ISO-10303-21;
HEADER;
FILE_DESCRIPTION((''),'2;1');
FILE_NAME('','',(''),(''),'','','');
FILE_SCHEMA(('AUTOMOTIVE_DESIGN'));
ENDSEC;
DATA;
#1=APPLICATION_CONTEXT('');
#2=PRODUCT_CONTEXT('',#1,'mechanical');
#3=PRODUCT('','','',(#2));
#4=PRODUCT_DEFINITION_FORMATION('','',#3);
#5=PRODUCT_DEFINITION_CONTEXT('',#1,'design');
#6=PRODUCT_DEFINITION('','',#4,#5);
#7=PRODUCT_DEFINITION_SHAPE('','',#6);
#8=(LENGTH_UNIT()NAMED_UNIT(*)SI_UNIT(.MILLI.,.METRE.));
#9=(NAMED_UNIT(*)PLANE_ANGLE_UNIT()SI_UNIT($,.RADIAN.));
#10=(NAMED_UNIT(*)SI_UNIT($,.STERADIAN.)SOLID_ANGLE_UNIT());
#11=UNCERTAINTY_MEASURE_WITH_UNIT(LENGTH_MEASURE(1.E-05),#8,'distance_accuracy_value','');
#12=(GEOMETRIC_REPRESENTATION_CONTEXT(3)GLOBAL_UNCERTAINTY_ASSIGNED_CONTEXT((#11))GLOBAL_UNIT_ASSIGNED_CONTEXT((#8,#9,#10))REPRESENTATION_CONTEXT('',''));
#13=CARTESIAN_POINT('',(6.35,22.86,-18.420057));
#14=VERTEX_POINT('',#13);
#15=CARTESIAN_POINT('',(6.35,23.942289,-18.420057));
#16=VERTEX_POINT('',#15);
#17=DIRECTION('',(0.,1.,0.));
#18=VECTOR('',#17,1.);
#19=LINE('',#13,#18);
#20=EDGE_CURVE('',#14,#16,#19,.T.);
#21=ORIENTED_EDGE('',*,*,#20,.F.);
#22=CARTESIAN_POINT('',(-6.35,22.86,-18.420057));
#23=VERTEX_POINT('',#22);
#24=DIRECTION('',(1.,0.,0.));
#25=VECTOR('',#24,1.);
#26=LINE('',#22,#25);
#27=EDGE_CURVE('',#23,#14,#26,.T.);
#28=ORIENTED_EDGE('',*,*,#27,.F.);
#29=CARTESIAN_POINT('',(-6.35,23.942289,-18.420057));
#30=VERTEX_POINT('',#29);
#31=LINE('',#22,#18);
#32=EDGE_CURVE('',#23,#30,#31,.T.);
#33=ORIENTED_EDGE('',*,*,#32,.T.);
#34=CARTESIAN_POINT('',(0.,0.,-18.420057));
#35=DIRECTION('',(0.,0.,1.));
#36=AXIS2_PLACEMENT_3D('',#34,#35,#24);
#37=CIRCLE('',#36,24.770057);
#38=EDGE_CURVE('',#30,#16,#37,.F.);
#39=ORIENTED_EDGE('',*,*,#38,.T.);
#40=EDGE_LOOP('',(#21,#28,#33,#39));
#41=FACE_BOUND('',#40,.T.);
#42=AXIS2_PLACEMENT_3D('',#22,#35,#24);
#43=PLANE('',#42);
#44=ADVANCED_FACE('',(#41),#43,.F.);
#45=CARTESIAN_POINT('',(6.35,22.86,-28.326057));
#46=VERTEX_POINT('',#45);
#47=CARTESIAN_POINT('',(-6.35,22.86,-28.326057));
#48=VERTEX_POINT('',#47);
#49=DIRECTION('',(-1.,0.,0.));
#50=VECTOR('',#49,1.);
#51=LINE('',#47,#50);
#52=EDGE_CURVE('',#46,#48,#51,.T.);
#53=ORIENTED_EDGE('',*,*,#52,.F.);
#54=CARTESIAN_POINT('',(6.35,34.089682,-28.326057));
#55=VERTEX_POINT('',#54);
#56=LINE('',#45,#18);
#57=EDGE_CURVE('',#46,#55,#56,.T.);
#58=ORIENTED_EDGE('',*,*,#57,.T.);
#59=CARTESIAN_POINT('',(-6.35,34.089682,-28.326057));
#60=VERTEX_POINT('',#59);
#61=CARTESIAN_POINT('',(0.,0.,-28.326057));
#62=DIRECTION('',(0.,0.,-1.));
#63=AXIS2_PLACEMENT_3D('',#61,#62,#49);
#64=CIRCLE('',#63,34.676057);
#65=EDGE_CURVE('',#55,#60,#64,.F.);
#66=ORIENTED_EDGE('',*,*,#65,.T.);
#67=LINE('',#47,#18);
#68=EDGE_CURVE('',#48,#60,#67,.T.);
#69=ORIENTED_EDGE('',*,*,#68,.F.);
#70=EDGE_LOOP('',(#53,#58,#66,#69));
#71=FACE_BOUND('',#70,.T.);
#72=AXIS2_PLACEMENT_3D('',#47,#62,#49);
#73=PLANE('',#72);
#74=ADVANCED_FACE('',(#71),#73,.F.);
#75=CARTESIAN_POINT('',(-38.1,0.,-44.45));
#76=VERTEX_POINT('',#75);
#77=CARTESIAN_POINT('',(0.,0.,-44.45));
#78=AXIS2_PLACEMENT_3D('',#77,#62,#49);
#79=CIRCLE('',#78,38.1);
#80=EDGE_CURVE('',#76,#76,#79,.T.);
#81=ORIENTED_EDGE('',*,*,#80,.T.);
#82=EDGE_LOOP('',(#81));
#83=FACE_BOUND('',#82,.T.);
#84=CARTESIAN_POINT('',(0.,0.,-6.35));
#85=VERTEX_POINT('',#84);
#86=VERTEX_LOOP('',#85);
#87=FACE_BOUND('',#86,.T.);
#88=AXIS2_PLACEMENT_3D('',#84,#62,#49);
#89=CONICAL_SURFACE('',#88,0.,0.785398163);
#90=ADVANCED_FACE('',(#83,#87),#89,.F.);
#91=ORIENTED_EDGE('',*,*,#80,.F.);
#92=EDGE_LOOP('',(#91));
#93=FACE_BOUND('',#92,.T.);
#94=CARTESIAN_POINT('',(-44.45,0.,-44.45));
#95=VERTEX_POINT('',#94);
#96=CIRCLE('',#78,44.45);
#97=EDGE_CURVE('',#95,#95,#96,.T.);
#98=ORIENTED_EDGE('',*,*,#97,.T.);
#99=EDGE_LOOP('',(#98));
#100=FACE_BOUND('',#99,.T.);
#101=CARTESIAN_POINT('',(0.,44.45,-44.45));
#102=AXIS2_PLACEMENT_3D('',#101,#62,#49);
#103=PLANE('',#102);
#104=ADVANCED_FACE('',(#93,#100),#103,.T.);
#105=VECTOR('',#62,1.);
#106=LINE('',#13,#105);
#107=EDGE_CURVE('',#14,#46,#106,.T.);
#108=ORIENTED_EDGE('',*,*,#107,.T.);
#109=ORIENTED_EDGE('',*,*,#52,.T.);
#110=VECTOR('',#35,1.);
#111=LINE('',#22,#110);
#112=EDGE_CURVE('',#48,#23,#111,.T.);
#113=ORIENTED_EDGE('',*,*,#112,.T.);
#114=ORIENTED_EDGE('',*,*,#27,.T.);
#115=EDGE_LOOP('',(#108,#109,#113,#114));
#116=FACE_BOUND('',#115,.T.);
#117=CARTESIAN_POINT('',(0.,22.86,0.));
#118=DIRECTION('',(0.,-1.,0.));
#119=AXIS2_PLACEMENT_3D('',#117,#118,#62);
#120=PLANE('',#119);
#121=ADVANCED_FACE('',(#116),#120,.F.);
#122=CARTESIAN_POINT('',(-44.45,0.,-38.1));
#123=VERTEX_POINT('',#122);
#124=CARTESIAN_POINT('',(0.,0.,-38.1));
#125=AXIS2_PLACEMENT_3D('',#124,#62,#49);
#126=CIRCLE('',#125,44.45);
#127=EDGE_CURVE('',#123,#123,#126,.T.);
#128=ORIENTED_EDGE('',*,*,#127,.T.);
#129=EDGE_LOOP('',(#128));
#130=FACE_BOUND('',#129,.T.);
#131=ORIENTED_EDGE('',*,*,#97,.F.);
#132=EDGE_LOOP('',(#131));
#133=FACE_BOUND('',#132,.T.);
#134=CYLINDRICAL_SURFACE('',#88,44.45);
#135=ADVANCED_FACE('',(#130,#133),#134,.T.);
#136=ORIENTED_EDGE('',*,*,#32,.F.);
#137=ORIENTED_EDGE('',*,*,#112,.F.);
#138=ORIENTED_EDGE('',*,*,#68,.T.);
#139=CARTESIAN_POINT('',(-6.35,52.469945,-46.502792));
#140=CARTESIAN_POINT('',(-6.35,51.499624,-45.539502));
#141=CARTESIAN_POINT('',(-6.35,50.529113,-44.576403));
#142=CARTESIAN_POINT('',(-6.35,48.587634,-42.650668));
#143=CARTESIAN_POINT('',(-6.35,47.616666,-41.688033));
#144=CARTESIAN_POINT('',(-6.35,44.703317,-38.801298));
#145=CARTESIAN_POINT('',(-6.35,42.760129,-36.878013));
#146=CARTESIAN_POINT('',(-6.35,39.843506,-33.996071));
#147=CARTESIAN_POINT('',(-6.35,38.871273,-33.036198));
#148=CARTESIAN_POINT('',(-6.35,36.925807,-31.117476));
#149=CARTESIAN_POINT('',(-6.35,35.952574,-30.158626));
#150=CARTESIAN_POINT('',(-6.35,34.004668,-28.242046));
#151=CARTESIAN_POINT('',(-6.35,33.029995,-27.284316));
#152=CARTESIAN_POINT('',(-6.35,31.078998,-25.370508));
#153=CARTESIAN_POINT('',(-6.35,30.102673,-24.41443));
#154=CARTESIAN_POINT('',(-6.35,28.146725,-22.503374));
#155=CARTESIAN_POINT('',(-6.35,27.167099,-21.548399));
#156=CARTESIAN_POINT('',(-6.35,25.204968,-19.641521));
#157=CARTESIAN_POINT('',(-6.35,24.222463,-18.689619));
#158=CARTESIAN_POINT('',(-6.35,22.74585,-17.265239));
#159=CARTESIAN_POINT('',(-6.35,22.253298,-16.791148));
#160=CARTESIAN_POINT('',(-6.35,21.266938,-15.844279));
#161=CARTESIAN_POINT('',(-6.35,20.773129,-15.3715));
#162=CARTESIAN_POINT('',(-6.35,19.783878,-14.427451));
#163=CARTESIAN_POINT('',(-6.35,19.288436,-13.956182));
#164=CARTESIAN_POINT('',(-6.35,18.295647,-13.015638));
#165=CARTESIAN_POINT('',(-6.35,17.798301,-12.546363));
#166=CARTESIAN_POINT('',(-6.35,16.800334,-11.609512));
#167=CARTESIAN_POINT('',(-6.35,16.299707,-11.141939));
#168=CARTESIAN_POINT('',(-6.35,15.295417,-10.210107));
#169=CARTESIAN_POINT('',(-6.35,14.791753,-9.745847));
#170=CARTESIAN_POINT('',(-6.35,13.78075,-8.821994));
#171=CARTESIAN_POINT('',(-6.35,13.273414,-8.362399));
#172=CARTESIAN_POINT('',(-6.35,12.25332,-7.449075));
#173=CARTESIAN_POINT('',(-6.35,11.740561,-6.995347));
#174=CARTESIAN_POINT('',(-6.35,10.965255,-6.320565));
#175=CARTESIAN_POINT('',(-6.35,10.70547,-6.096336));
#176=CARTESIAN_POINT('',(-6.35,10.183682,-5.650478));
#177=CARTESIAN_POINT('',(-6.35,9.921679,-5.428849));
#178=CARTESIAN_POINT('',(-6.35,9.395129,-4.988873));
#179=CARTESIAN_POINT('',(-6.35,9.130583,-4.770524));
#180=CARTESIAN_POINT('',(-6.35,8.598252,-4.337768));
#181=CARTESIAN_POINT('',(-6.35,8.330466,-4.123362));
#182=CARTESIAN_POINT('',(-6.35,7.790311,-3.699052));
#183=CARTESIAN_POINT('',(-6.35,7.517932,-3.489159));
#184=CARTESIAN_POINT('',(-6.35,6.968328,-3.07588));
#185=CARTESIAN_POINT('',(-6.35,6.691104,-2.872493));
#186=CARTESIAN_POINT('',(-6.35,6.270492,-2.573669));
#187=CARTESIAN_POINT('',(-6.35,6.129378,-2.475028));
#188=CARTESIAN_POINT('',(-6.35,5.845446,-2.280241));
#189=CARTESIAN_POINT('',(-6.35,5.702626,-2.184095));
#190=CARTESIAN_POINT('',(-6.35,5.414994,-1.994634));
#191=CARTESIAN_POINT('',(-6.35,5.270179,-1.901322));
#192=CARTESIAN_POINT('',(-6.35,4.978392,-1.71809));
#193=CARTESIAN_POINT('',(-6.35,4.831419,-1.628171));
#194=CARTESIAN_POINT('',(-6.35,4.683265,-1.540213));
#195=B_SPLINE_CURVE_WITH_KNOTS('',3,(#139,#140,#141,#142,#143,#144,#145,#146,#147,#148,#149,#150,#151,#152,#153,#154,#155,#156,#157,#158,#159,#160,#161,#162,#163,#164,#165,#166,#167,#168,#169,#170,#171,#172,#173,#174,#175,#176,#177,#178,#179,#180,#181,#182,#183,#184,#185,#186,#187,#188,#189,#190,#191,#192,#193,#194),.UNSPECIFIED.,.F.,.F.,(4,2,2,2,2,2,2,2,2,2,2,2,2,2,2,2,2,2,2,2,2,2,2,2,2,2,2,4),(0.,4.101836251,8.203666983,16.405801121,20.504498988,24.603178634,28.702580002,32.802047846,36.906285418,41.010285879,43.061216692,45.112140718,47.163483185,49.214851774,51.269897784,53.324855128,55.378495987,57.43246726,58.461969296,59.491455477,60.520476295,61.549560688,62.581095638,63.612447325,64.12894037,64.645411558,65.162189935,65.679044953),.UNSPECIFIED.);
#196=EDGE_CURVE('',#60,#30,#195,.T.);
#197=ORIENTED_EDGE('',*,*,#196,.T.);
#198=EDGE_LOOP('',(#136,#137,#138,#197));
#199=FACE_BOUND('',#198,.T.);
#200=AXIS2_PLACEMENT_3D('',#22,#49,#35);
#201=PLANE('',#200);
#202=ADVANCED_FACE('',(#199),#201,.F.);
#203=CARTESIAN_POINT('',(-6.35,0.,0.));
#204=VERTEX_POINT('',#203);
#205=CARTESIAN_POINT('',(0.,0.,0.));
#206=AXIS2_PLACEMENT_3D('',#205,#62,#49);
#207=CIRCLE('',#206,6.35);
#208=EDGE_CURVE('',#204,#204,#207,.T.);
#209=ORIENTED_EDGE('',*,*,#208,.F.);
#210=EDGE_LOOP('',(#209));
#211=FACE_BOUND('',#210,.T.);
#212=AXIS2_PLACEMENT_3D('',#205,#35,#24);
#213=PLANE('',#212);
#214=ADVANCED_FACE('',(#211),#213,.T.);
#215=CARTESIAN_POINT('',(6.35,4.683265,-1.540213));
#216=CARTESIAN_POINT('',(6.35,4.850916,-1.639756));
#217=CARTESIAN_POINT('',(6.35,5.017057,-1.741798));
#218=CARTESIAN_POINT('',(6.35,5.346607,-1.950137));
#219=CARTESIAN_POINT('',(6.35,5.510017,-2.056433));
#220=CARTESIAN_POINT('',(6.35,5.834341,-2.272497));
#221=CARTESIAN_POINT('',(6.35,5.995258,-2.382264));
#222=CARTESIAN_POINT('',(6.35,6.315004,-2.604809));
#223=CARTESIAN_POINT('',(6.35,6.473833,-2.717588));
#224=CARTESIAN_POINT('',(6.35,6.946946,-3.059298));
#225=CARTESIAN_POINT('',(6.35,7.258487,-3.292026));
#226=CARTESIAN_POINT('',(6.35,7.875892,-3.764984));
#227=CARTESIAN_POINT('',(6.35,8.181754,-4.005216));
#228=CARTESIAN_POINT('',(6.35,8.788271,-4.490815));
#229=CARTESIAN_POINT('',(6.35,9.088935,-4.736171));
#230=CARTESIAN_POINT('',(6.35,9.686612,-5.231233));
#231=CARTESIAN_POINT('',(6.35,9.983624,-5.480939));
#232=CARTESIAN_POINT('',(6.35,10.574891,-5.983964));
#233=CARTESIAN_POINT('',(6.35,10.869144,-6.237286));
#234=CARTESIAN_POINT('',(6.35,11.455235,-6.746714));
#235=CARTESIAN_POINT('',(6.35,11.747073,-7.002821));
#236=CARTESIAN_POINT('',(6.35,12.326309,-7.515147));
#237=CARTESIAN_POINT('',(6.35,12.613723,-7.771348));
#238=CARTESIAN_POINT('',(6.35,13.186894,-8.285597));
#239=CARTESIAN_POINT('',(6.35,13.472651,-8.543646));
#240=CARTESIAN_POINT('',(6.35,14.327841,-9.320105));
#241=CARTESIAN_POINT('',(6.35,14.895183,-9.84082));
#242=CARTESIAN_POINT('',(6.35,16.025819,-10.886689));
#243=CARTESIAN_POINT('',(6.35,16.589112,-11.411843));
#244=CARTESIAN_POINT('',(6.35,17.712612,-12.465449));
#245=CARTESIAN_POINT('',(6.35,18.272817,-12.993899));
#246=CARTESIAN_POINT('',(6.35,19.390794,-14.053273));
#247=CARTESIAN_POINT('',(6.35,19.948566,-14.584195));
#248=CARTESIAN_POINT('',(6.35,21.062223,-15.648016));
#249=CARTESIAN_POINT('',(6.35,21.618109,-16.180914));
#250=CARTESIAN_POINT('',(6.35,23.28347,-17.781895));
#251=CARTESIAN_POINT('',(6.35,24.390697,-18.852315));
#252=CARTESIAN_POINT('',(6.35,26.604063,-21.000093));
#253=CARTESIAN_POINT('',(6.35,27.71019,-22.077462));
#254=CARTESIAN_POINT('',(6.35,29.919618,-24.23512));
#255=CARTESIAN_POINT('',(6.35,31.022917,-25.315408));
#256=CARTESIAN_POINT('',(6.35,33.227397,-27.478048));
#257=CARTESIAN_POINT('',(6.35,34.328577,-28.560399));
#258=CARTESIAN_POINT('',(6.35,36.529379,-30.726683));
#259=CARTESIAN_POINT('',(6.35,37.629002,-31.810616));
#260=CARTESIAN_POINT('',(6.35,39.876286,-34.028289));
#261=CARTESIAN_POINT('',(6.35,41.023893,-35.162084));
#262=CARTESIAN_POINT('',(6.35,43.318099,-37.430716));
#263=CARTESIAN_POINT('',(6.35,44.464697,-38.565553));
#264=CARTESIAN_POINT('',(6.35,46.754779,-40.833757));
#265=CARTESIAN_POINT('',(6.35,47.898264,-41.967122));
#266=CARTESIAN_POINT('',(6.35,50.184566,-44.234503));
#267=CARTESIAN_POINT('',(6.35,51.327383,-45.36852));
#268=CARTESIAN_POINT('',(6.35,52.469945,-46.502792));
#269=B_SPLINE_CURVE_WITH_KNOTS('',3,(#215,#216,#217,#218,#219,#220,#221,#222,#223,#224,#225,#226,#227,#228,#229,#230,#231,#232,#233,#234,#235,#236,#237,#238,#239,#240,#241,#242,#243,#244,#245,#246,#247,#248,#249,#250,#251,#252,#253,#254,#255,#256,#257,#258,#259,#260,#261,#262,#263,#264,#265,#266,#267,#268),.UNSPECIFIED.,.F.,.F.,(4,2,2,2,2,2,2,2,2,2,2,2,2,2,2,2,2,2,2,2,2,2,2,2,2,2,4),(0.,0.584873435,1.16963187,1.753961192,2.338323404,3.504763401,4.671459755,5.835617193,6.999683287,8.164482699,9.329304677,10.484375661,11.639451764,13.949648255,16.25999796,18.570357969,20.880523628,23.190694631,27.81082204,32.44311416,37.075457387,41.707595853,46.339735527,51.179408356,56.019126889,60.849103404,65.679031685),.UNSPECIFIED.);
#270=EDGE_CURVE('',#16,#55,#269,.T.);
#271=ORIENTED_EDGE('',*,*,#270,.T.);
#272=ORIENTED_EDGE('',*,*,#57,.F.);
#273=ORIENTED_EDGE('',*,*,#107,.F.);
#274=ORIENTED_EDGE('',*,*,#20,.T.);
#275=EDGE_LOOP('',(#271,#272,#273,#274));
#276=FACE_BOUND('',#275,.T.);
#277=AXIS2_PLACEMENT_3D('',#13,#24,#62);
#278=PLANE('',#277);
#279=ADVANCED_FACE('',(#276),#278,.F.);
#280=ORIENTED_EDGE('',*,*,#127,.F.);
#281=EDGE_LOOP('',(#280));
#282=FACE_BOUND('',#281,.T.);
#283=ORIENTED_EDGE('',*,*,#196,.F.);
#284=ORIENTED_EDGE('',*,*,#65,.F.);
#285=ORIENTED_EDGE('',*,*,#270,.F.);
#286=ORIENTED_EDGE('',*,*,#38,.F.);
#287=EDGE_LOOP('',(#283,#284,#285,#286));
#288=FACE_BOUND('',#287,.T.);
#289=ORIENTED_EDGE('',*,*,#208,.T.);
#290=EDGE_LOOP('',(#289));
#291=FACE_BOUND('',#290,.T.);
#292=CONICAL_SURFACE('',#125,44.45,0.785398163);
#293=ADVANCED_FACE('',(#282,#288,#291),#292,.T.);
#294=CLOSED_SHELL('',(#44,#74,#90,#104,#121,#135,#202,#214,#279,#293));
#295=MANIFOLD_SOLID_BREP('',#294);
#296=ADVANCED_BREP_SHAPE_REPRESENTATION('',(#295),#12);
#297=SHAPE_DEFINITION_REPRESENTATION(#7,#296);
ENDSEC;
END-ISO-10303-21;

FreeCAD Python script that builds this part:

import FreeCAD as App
import Part
import Sketcher
Q = App.Units.Quantity


def add_polygon(sketch, points):
    """Adds a closed chain of lines whose ends are joined by coincident constraints."""
    first, n = sketch.GeometryCount, len(points)
    for a, b in zip(points, points[1:] + points[:1]):
        sketch.addGeometry(Part.LineSegment(App.Vector(*a, 0), App.Vector(*b, 0)), False)
    for i in range(n):
        sketch.addConstraint(Sketcher.Constraint("Coincident", first + i, 2, first + (i + 1) % n, 1))

doc = App.newDocument("Part")
body = doc.addObject("PartDesign::Body", "Body")

sketch1 = body.newObject("Sketcher::SketchObject", "Sketch")
sketch1.AttachmentSupport = (doc.getObject("YZ_Plane"), [""])
sketch1.MapMode = "FlatFace"
add_polygon(sketch1, [(6.35, 0), (0, 0), (0, -6.35), (38.1, -44.45), (44.45, -44.45), (44.45, -38.1)])
sketch1.addConstraint([
    Sketcher.Constraint("Horizontal", 0),
    Sketcher.Constraint("Vertical", 1),
    Sketcher.Constraint("Horizontal", 3),
    Sketcher.Constraint("Vertical", 4),
    Sketcher.Constraint("Coincident", 0, 2, -1, 1),
    Sketcher.Constraint("Parallel", 2, 5),
    Sketcher.Constraint("Equal", 0, 3),
    Sketcher.Constraint("Equal", 3, 1),
    Sketcher.Constraint("Angle", 2, Q("-45 deg")),
    Sketcher.Constraint("DistanceX", 0, 2, 0, 1, Q("0.25 in")),
    Sketcher.Constraint("DistanceX", -1, 1, 2, 2, Q("1.5 in")),
])
revolution = body.newObject("PartDesign::Revolution", "Revolution")
revolution.Profile = sketch1
revolution.ReferenceAxis = (sketch1, ["V_Axis"])
revolution.Angle = 360

sketch2 = body.newObject("Sketcher::SketchObject", "Sketch001")
sketch2.AttachmentSupport = (doc.getObject("XZ_Plane"), [""])
sketch2.MapMode = "FlatFace"
sketch2.AttachmentOffset = App.Placement(App.Vector(0, 0, -1.5 * 25.4), App.Rotation())
add_polygon(sketch2, [(-6.35, -28.326057), (-6.35, -18.420057), (6.35, -18.420057), (6.35, -28.326057)])
sketch2.addConstraint([
    Sketcher.Constraint("Vertical", 0),
    Sketcher.Constraint("Horizontal", 1),
    Sketcher.Constraint("Vertical", 2),
    Sketcher.Constraint("Horizontal", 3),
    Sketcher.Constraint("DistanceX", 1, 1, 1, 2, Q("0.5 in")),
    Sketcher.Constraint("DistanceY", 0, 1, 0, 2, Q("0.39 in")),
    Sketcher.Constraint("DistanceX", 0, 2, -1, 1, Q("0.25 in")),
    Sketcher.Constraint("DistanceY", 0, 2, -1, 1, Q("18.420057 mm")),
])
pocket1 = body.newObject("PartDesign::Pocket", "Pocket")
pocket1.Profile = sketch2
pocket1.Length = Q("0.6 in")
pocket1.Reversed = True

doc.recompute()
